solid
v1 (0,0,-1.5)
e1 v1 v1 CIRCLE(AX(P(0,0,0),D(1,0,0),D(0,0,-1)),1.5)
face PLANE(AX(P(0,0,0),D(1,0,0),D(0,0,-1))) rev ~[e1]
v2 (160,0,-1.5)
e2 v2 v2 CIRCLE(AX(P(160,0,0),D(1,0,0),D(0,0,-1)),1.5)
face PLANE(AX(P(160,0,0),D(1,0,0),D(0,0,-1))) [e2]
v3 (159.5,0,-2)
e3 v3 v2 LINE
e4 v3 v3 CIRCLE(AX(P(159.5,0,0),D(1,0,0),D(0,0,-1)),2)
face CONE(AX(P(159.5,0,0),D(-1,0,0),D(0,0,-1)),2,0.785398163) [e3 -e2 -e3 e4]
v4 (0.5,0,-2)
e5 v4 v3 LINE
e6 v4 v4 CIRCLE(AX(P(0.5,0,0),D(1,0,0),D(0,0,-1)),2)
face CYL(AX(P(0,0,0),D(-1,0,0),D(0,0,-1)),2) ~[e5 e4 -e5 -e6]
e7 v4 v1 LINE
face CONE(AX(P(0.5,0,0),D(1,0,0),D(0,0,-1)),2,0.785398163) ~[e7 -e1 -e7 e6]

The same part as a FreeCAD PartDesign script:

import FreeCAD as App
import Part
import Sketcher


def edges_at(feature, points):
    """Names of the edges that pass closest to the given points."""
    edges = feature.Shape.Edges
    near = lambda p: min(range(len(edges)), key=lambda i: edges[i].distToShape(Part.Vertex(*p))[0])
    return sorted({f"Edge{near(p) + 1}" for p in points})

doc = App.newDocument("Part")
body = doc.addObject("PartDesign::Body", "Body")

# Sketch on YZ plane
sketch1 = doc.addObject("Sketcher::SketchObject", "Sketch")
body.addObject(sketch1)
sketch1.AttachmentSupport = (doc.YZ_Plane, [""])
sketch1.MapMode = "FlatFace"
sketch1.addGeometry(Part.Circle(App.Vector(0, 0, 0), App.Vector(0, 0, 1), 2), False)
sketch1.addConstraint(Sketcher.Constraint("Coincident", 0, 3, -1, 1))
sketch1.addConstraint(Sketcher.Constraint("Diameter", 0, 4.0))
pad1 = doc.addObject("PartDesign::Pad", "Pad")
body.addObject(pad1)
pad1.Profile = sketch1
pad1.Length = 160
doc.recompute()

chamfer = doc.addObject("PartDesign::Chamfer", "Chamfer")
body.addObject(chamfer)
chamfer.Base = (pad1, edges_at(pad1, [(0, 0, 2), (160, 0, 2)]))
chamfer.Size = 0.5

doc.recompute()
